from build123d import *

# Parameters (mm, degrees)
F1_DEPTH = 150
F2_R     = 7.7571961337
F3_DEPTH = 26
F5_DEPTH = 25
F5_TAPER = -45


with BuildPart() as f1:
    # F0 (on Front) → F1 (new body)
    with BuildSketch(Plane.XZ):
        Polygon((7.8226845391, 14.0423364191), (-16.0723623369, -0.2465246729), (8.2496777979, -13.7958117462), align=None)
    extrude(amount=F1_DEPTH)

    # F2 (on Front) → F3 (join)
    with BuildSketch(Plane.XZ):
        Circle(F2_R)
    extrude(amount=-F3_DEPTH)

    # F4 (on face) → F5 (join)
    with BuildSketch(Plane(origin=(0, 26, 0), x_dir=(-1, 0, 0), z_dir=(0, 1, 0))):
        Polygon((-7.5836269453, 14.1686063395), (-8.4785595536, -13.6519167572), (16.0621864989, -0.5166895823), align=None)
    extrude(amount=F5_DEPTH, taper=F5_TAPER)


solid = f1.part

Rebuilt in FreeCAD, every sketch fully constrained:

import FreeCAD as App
import Part
import Sketcher
Q = App.Units.Quantity

doc = App.newDocument("Part")
body = doc.addObject("PartDesign::Body", "Body")

# Sketch on XZ plane
sketch1 = doc.addObject("Sketcher::SketchObject", "Sketch")
body.addObject(sketch1)
sketch1.AttachmentSupport = (doc.XZ_Plane, [""])
sketch1.MapMode = "FlatFace"
sketch1.addGeometry([
    Part.LineSegment(App.Vector(7.822685, 14.042336, 0), App.Vector(-16.072362, -0.246525, 0)),
    Part.LineSegment(App.Vector(-16.072362, -0.246525, 0), App.Vector(8.249678, -13.795812, 0)),
    Part.LineSegment(App.Vector(8.249678, -13.795812, 0), App.Vector(7.822685, 14.042336, 0)),
], False)
sketch1.addConstraint([
    Sketcher.Constraint("Coincident", 0, 2, 1, 1),
    Sketcher.Constraint("Coincident", 1, 2, 2, 1),
    Sketcher.Constraint("Coincident", 2, 2, 0, 1),
    Sketcher.Constraint("Equal", 0, 1),
    Sketcher.Constraint("Equal", 1, 2),
    Sketcher.Constraint("DistanceY", 1, 2, -1, 1, Q("13.795812 mm")),
    Sketcher.Constraint("DistanceX", 0, 2, 1, 2, Q("24.32204 mm")),
    Sketcher.Constraint("DistanceY", 1, 2, 2, 2, Q("27.838148 mm")),
    Sketcher.Constraint("DistanceX", 0, 2, -1, 1, Q("16.072362 mm")),
])
pad1 = doc.addObject("PartDesign::Pad", "Pad")
body.addObject(pad1)
pad1.Profile = sketch1
pad1.Length = 150

# Sketch on XZ plane
sketch2 = doc.addObject("Sketcher::SketchObject", "Sketch001")
body.addObject(sketch2)
sketch2.AttachmentSupport = (doc.XZ_Plane, [""])
sketch2.MapMode = "FlatFace"
sketch2.addGeometry(Part.Circle(App.Vector(0, 0, 0), App.Vector(0, 0, 1), 7.757196), False)
sketch2.addConstraint([
    Sketcher.Constraint("Coincident", 0, 3, -1, 1),
    Sketcher.Constraint("Diameter", 0, Q("15.514392 mm")),
])
pad2 = doc.addObject("PartDesign::Pad", "Pad001")
body.addObject(pad2)
pad2.Profile = sketch2
pad2.Length = 26
pad2.Reversed = True

# Sketch on XZ plane
sketch3 = doc.addObject("Sketcher::SketchObject", "Sketch002")
body.addObject(sketch3)
sketch3.AttachmentSupport = (doc.XZ_Plane, [""])
sketch3.MapMode = "FlatFace"
sketch3.AttachmentOffset = App.Placement(App.Vector(0, 0, -26), App.Rotation())
sketch3.addGeometry([
    Part.LineSegment(App.Vector(7.583627, 14.168606, 0), App.Vector(8.47856, -13.651917, 0)),
    Part.LineSegment(App.Vector(8.47856, -13.651917, 0), App.Vector(-16.062186, -0.51669, 0)),
    Part.LineSegment(App.Vector(-16.062186, -0.51669, 0), App.Vector(7.583627, 14.168606, 0)),
], False)
sketch3.addConstraint([
    Sketcher.Constraint("Coincident", 0, 2, 1, 1),
    Sketcher.Constraint("Coincident", 1, 2, 2, 1),
    Sketcher.Constraint("Coincident", 2, 2, 0, 1),
    Sketcher.Constraint("Equal", 0, 1),
    Sketcher.Constraint("Equal", 1, 2),
    Sketcher.Constraint("DistanceX", -1, 1, 0, 2, Q("8.47856 mm")),
    Sketcher.Constraint("DistanceY", 1, 2, -1, 1, Q("0.51669 mm")),
    Sketcher.Constraint("Distance", 0, Q("27.834914 mm")),
    Sketcher.Constraint("DistanceY", 0, 2, -1, 1, Q("13.651917 mm")),
])
pad3 = doc.addObject("PartDesign::Pad", "Pad002")
body.addObject(pad3)
pad3.Profile = sketch3
pad3.Length = 25
pad3.Reversed = True
pad3.TaperAngle = 45

doc.recompute()
